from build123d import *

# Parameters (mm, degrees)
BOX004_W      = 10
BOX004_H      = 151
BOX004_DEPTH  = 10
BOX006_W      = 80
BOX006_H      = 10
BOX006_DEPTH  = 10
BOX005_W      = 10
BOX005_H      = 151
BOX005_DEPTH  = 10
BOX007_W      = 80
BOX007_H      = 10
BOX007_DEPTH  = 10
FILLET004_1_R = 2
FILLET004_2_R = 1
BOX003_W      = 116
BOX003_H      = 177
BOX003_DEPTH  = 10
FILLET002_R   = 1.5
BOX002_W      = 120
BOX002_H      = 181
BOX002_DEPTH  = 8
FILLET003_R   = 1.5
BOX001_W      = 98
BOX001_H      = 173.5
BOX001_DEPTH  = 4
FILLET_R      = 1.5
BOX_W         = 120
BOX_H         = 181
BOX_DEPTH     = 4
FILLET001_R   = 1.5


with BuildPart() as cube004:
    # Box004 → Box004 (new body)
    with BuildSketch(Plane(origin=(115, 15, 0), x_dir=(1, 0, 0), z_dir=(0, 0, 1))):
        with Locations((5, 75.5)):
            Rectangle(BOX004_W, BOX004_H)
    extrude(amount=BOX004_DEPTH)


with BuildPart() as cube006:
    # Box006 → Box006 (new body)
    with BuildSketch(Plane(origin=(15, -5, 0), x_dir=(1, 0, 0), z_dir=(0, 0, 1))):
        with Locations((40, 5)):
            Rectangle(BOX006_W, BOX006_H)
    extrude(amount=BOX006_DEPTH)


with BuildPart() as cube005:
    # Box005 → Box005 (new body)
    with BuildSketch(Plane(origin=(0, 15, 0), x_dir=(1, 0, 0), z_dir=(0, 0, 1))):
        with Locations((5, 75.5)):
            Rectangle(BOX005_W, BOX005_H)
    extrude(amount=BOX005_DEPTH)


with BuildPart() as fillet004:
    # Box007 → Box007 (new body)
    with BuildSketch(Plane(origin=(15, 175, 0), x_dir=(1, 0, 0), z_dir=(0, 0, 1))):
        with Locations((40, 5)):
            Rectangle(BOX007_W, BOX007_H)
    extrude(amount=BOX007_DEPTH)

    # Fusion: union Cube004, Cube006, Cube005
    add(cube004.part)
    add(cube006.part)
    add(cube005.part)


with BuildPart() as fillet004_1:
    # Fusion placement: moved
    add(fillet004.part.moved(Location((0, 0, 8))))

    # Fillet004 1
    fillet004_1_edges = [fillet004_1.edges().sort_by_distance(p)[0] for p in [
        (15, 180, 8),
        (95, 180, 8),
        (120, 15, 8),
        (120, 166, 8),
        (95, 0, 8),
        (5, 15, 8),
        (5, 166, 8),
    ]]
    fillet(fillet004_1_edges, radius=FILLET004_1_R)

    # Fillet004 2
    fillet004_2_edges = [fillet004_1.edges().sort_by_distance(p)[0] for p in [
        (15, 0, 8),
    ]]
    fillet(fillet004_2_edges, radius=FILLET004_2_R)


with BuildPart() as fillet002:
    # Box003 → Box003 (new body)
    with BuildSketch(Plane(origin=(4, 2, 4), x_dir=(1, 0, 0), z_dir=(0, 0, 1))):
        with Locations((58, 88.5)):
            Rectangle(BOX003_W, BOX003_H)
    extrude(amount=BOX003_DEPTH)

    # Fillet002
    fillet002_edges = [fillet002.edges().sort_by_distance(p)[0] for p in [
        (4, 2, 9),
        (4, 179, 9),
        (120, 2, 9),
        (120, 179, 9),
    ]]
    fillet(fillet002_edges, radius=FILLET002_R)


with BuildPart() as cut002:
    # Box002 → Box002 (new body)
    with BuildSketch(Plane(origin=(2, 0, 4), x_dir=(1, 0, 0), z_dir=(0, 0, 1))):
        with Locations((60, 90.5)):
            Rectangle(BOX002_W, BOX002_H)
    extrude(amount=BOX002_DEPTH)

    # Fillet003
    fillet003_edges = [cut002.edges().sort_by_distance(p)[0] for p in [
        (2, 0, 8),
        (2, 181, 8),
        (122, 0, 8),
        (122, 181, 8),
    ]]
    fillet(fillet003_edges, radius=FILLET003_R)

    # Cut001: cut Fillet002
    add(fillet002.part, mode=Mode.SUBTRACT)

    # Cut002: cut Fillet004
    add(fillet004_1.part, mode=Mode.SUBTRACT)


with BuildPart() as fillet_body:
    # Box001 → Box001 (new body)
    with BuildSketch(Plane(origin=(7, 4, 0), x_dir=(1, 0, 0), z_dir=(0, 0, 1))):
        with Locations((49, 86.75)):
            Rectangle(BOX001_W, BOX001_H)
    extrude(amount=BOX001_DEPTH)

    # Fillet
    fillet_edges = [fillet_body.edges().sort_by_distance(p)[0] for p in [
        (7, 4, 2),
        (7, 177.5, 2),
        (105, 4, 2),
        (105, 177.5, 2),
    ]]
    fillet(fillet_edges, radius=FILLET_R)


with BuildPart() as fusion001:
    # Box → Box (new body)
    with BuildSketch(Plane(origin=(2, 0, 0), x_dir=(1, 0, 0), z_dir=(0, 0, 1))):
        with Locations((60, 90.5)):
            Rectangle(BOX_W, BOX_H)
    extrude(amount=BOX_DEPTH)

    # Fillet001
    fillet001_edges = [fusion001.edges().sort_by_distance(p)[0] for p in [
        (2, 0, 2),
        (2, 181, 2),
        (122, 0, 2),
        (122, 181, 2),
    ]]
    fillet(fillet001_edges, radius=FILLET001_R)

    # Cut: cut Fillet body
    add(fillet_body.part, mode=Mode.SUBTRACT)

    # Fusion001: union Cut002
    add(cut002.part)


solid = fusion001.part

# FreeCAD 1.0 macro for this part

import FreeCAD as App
import Part
import Sketcher


def edges_at(feature, points):
    """Names of the edges that pass closest to the given points."""
    edges = feature.Shape.Edges
    near = lambda p: min(range(len(edges)), key=lambda i: edges[i].distToShape(Part.Vertex(*p))[0])
    return sorted({f"Edge{near(p) + 1}" for p in points})

doc = App.newDocument("Part")
params = doc.addObject("Spreadsheet::Sheet", "Params")
for row, (alias, value) in enumerate([
    ("sketch1_width", "10 mm"),
    ("sketch1_height", "151 mm"),
    ("pad1_length", "10 mm"),
    ("sketch2_width", "80 mm"),
    ("sketch2_height", "10 mm"),
    ("pad2_length", "10 mm"),
    ("sketch3_width", "10 mm"),
    ("sketch3_height", "151 mm"),
    ("pad3_length", "10 mm"),
    ("sketch4_width", "80 mm"),
    ("sketch4_height", "10 mm"),
    ("pad4_length", "10 mm"),
    ("fillet_radius", "2 mm"),
    ("fillet2_radius", "1 mm"),
    ("sketch5_width", "116 mm"),
    ("sketch5_height", "177 mm"),
    ("pad5_length", "10 mm"),
    ("fillet3_radius", "1.5 mm"),
    ("sketch6_width", "120 mm"),
    ("sketch6_height", "181 mm"),
    ("pad6_length", "8 mm"),
    ("fillet4_radius", "1.5 mm"),
    ("sketch7_width", "98 mm"),
    ("sketch7_height", "173.5 mm"),
    ("pad7_length", "4 mm"),
    ("fillet5_radius", "1.5 mm"),
    ("sketch8_width", "120 mm"),
    ("sketch8_height", "181 mm"),
    ("pad8_length", "4 mm"),
    ("fillet6_radius", "1.5 mm"),
], start=1):
    params.set(f"A{row}", alias)
    params.set(f"B{row}", "=" + value)
    params.setAlias(f"B{row}", alias)

body = doc.addObject("PartDesign::Body", "Body")

sketch1 = body.newObject("Sketcher::SketchObject", "Sketch")
sketch1.AttachmentSupport = (doc.getObject("XY_Plane"), [""])
sketch1.MapMode = "FlatFace"
sketch1.addGeometry(Part.LineSegment(App.Vector(115, 166, 0), App.Vector(115, 15, 0)), False)
sketch1.addGeometry(Part.LineSegment(App.Vector(115, 15, 0), App.Vector(125, 15, 0)), False)
sketch1.addGeometry(Part.LineSegment(App.Vector(125, 15, 0), App.Vector(125, 166, 0)), False)
sketch1.addGeometry(Part.LineSegment(App.Vector(125, 166, 0), App.Vector(115, 166, 0)), False)
sketch1.addConstraint(Sketcher.Constraint("Coincident", 0, 2, 1, 1))
sketch1.addConstraint(Sketcher.Constraint("Coincident", 1, 2, 2, 1))
sketch1.addConstraint(Sketcher.Constraint("Coincident", 2, 2, 3, 1))
sketch1.addConstraint(Sketcher.Constraint("Coincident", 3, 2, 0, 1))
sketch1.addConstraint(Sketcher.Constraint("Vertical", 0))
sketch1.addConstraint(Sketcher.Constraint("Horizontal", 1))
sketch1.addConstraint(Sketcher.Constraint("Vertical", 2))
sketch1.addConstraint(Sketcher.Constraint("Horizontal", 3))
sketch1.addConstraint(Sketcher.Constraint("DistanceX", 1, 1, 1, 2, 10.0))
sketch1.addConstraint(Sketcher.Constraint("DistanceY", 0, 2, 0, 1, 151.0))
sketch1.addConstraint(Sketcher.Constraint("DistanceX", -1, 1, 0, 2, 115.0))
sketch1.addConstraint(Sketcher.Constraint("DistanceY", -1, 1, 0, 2, 15.0))
sketch1.setExpression("Constraints[8]", "Params.sketch1_width")
sketch1.setExpression("Constraints[9]", "Params.sketch1_height")
pad1 = body.newObject("PartDesign::Pad", "Pad")
pad1.Profile = sketch1
pad1.setExpression("Length", "Params.pad1_length")
body2 = doc.addObject("PartDesign::Body", "Body001")

sketch2 = body2.newObject("Sketcher::SketchObject", "Sketch001")
sketch2.AttachmentSupport = (doc.getObject("XY_Plane001"), [""])
sketch2.MapMode = "FlatFace"
sketch2.addGeometry(Part.LineSegment(App.Vector(15, 5, 0), App.Vector(15, -5, 0)), False)
sketch2.addGeometry(Part.LineSegment(App.Vector(15, -5, 0), App.Vector(95, -5, 0)), False)
sketch2.addGeometry(Part.LineSegment(App.Vector(95, -5, 0), App.Vector(95, 5, 0)), False)
sketch2.addGeometry(Part.LineSegment(App.Vector(95, 5, 0), App.Vector(15, 5, 0)), False)
sketch2.addConstraint(Sketcher.Constraint("Coincident", 0, 2, 1, 1))
sketch2.addConstraint(Sketcher.Constraint("Coincident", 1, 2, 2, 1))
sketch2.addConstraint(Sketcher.Constraint("Coincident", 2, 2, 3, 1))
sketch2.addConstraint(Sketcher.Constraint("Coincident", 3, 2, 0, 1))
sketch2.addConstraint(Sketcher.Constraint("Vertical", 0))
sketch2.addConstraint(Sketcher.Constraint("Horizontal", 1))
sketch2.addConstraint(Sketcher.Constraint("Vertical", 2))
sketch2.addConstraint(Sketcher.Constraint("Horizontal", 3))
sketch2.addConstraint(Sketcher.Constraint("DistanceX", 1, 1, 1, 2, 80.0))
sketch2.addConstraint(Sketcher.Constraint("DistanceY", 0, 2, 0, 1, 10.0))
sketch2.addConstraint(Sketcher.Constraint("DistanceX", -1, 1, 0, 2, 15.0))
sketch2.addConstraint(Sketcher.Constraint("DistanceY", 0, 2, -1, 1, 5.0))
sketch2.setExpression("Constraints[8]", "Params.sketch2_width")
sketch2.setExpression("Constraints[9]", "Params.sketch2_height")
pad2 = body2.newObject("PartDesign::Pad", "Pad001")
pad2.Profile = sketch2
pad2.setExpression("Length", "Params.pad2_length")
body3 = doc.addObject("PartDesign::Body", "Body002")

sketch3 = body3.newObject("Sketcher::SketchObject", "Sketch002")
sketch3.AttachmentSupport = (doc.getObject("XY_Plane002"), [""])
sketch3.MapMode = "FlatFace"
sketch3.addGeometry(Part.LineSegment(App.Vector(0, 166, 0), App.Vector(0, 15, 0)), False)
sketch3.addGeometry(Part.LineSegment(App.Vector(0, 15, 0), App.Vector(10, 15, 0)), False)
sketch3.addGeometry(Part.LineSegment(App.Vector(10, 15, 0), App.Vector(10, 166, 0)), False)
sketch3.addGeometry(Part.LineSegment(App.Vector(10, 166, 0), App.Vector(0, 166, 0)), False)
sketch3.addConstraint(Sketcher.Constraint("Coincident", 0, 2, 1, 1))
sketch3.addConstraint(Sketcher.Constraint("Coincident", 1, 2, 2, 1))
sketch3.addConstraint(Sketcher.Constraint("Coincident", 2, 2, 3, 1))
sketch3.addConstraint(Sketcher.Constraint("Coincident", 3, 2, 0, 1))
sketch3.addConstraint(Sketcher.Constraint("Vertical", 0))
sketch3.addConstraint(Sketcher.Constraint("Horizontal", 1))
sketch3.addConstraint(Sketcher.Constraint("Vertical", 2))
sketch3.addConstraint(Sketcher.Constraint("Horizontal", 3))
sketch3.addConstraint(Sketcher.Constraint("PointOnObject", 0, 2, -2))
sketch3.addConstraint(Sketcher.Constraint("DistanceX", 1, 1, 1, 2, 10.0))
sketch3.addConstraint(Sketcher.Constraint("DistanceY", 0, 2, 0, 1, 151.0))
sketch3.addConstraint(Sketcher.Constraint("DistanceY", -1, 1, 0, 2, 15.0))
sketch3.setExpression("Constraints[9]", "Params.sketch3_width")
sketch3.setExpression("Constraints[10]", "Params.sketch3_height")
pad3 = body3.newObject("PartDesign::Pad", "Pad002")
pad3.Profile = sketch3
pad3.setExpression("Length", "Params.pad3_length")
body4 = doc.addObject("PartDesign::Body", "Body003")
body4.AllowCompound = True

sketch4 = body4.newObject("Sketcher::SketchObject", "Sketch003")
sketch4.AttachmentSupport = (doc.getObject("XY_Plane003"), [""])
sketch4.MapMode = "FlatFace"
sketch4.addGeometry(Part.LineSegment(App.Vector(15, 185, 0), App.Vector(15, 175, 0)), False)
sketch4.addGeometry(Part.LineSegment(App.Vector(15, 175, 0), App.Vector(95, 175, 0)), False)
sketch4.addGeometry(Part.LineSegment(App.Vector(95, 175, 0), App.Vector(95, 185, 0)), False)
sketch4.addGeometry(Part.LineSegment(App.Vector(95, 185, 0), App.Vector(15, 185, 0)), False)
sketch4.addConstraint(Sketcher.Constraint("Coincident", 0, 2, 1, 1))
sketch4.addConstraint(Sketcher.Constraint("Coincident", 1, 2, 2, 1))
sketch4.addConstraint(Sketcher.Constraint("Coincident", 2, 2, 3, 1))
sketch4.addConstraint(Sketcher.Constraint("Coincident", 3, 2, 0, 1))
sketch4.addConstraint(Sketcher.Constraint("Vertical", 0))
sketch4.addConstraint(Sketcher.Constraint("Horizontal", 1))
sketch4.addConstraint(Sketcher.Constraint("Vertical", 2))
sketch4.addConstraint(Sketcher.Constraint("Horizontal", 3))
sketch4.addConstraint(Sketcher.Constraint("DistanceX", 1, 1, 1, 2, 80.0))
sketch4.addConstraint(Sketcher.Constraint("DistanceY", 0, 2, 0, 1, 10.0))
sketch4.addConstraint(Sketcher.Constraint("DistanceX", -1, 1, 0, 2, 15.0))
sketch4.addConstraint(Sketcher.Constraint("DistanceY", -1, 1, 0, 2, 175.0))
sketch4.setExpression("Constraints[8]", "Params.sketch4_width")
sketch4.setExpression("Constraints[9]", "Params.sketch4_height")
pad4 = body4.newObject("PartDesign::Pad", "Pad003")
pad4.Profile = sketch4
pad4.setExpression("Length", "Params.pad4_length")
doc.recompute()

boolean = body4.newObject("PartDesign::Boolean", "Boolean")
boolean.Type = "Fuse"
boolean.addObjects([body])
doc.recompute()

boolean2 = body4.newObject("PartDesign::Boolean", "Boolean001")
boolean2.Type = "Fuse"
boolean2.addObjects([body2])
doc.recompute()

boolean3 = body4.newObject("PartDesign::Boolean", "Boolean002")
boolean3.Type = "Fuse"
boolean3.addObjects([body3])
body5 = doc.addObject("PartDesign::Body", "Body004")
body5.AllowCompound = True
doc.recompute()

body4.Placement = App.Placement(App.Vector(0, 0, 8), App.Rotation(App.Vector(0, 0, 1), 0))
boolean4 = body5.newObject("PartDesign::Boolean", "Boolean003")
boolean4.Type = "Fuse"
boolean4.addObjects([body4])
doc.recompute()

fillet = body5.newObject("PartDesign::Fillet", "Fillet")
fillet.Base = (boolean4, edges_at(boolean4, [
    (15, 180, 8),
    (95, 180, 8),
    (120, 15, 8),
    (120, 166, 8),
    (95, 0, 8),
    (5, 15, 8),
    (5, 166, 8),
]))
fillet.setExpression("Radius", "Params.fillet_radius")
doc.recompute()

fillet2 = body5.newObject("PartDesign::Fillet", "Fillet001")
fillet2.Base = (fillet, edges_at(fillet, [(15, 0, 8)]))
fillet2.setExpression("Radius", "Params.fillet2_radius")
body6 = doc.addObject("PartDesign::Body", "Body005")

sketch5 = body6.newObject("Sketcher::SketchObject", "Sketch004")
sketch5.AttachmentSupport = (doc.getObject("XY_Plane005"), [""])
sketch5.MapMode = "FlatFace"
sketch5.AttachmentOffset = App.Placement(App.Vector(0, 0, 4), App.Rotation())
sketch5.addGeometry(Part.LineSegment(App.Vector(4, 179, 0), App.Vector(4, 2, 0)), False)
sketch5.addGeometry(Part.LineSegment(App.Vector(4, 2, 0), App.Vector(120, 2, 0)), False)
sketch5.addGeometry(Part.LineSegment(App.Vector(120, 2, 0), App.Vector(120, 179, 0)), False)
sketch5.addGeometry(Part.LineSegment(App.Vector(120, 179, 0), App.Vector(4, 179, 0)), False)
sketch5.addConstraint(Sketcher.Constraint("Coincident", 0, 2, 1, 1))
sketch5.addConstraint(Sketcher.Constraint("Coincident", 1, 2, 2, 1))
sketch5.addConstraint(Sketcher.Constraint("Coincident", 2, 2, 3, 1))
sketch5.addConstraint(Sketcher.Constraint("Coincident", 3, 2, 0, 1))
sketch5.addConstraint(Sketcher.Constraint("Vertical", 0))
sketch5.addConstraint(Sketcher.Constraint("Horizontal", 1))
sketch5.addConstraint(Sketcher.Constraint("Vertical", 2))
sketch5.addConstraint(Sketcher.Constraint("Horizontal", 3))
sketch5.addConstraint(Sketcher.Constraint("DistanceX", 1, 1, 1, 2, 116.0))
sketch5.addConstraint(Sketcher.Constraint("DistanceY", 0, 2, 0, 1, 177.0))
sketch5.addConstraint(Sketcher.Constraint("DistanceX", -1, 1, 0, 2, 4.0))
sketch5.addConstraint(Sketcher.Constraint("DistanceY", -1, 1, 0, 2, 2.0))
sketch5.setExpression("Constraints[8]", "Params.sketch5_width")
sketch5.setExpression("Constraints[9]", "Params.sketch5_height")
pad5 = body6.newObject("PartDesign::Pad", "Pad004")
pad5.Profile = sketch5
pad5.setExpression("Length", "Params.pad5_length")
doc.recompute()

fillet3 = body6.newObject("PartDesign::Fillet", "Fillet002")
fillet3.Base = (pad5, edges_at(pad5, [
    (4, 2, 9),
    (4, 179, 9),
    (120, 2, 9),
    (120, 179, 9),
]))
fillet3.setExpression("Radius", "Params.fillet3_radius")
body7 = doc.addObject("PartDesign::Body", "Body006")

sketch6 = body7.newObject("Sketcher::SketchObject", "Sketch005")
sketch6.AttachmentSupport = (doc.getObject("XY_Plane006"), [""])
sketch6.MapMode = "FlatFace"
sketch6.AttachmentOffset = App.Placement(App.Vector(0, 0, 4), App.Rotation())
sketch6.addGeometry(Part.LineSegment(App.Vector(2, 181, 0), App.Vector(2, 0, 0)), False)
sketch6.addGeometry(Part.LineSegment(App.Vector(2, 0, 0), App.Vector(122, 0, 0)), False)
sketch6.addGeometry(Part.LineSegment(App.Vector(122, 0, 0), App.Vector(122, 181, 0)), False)
sketch6.addGeometry(Part.LineSegment(App.Vector(122, 181, 0), App.Vector(2, 181, 0)), False)
sketch6.addConstraint(Sketcher.Constraint("Coincident", 0, 2, 1, 1))
sketch6.addConstraint(Sketcher.Constraint("Coincident", 1, 2, 2, 1))
sketch6.addConstraint(Sketcher.Constraint("Coincident", 2, 2, 3, 1))
sketch6.addConstraint(Sketcher.Constraint("Coincident", 3, 2, 0, 1))
sketch6.addConstraint(Sketcher.Constraint("Vertical", 0))
sketch6.addConstraint(Sketcher.Constraint("Horizontal", 1))
sketch6.addConstraint(Sketcher.Constraint("Vertical", 2))
sketch6.addConstraint(Sketcher.Constraint("Horizontal", 3))
sketch6.addConstraint(Sketcher.Constraint("PointOnObject", 0, 2, -1))
sketch6.addConstraint(Sketcher.Constraint("DistanceX", 1, 1, 1, 2, 120.0))
sketch6.addConstraint(Sketcher.Constraint("DistanceY", 0, 2, 0, 1, 181.0))
sketch6.addConstraint(Sketcher.Constraint("DistanceX", -1, 1, 0, 2, 2.0))
sketch6.setExpression("Constraints[9]", "Params.sketch6_width")
sketch6.setExpression("Constraints[10]", "Params.sketch6_height")
pad6 = body7.newObject("PartDesign::Pad", "Pad005")
pad6.Profile = sketch6
pad6.setExpression("Length", "Params.pad6_length")
doc.recompute()

fillet4 = body7.newObject("PartDesign::Fillet", "Fillet003")
fillet4.Base = (pad6, edges_at(pad6, [
    (2, 0, 8),
    (2, 181, 8),
    (122, 0, 8),
    (122, 181, 8),
]))
fillet4.setExpression("Radius", "Params.fillet4_radius")
doc.recompute()

boolean5 = body7.newObject("PartDesign::Boolean", "Boolean004")
boolean5.Type = "Cut"
boolean5.addObjects([body6])
doc.recompute()

boolean6 = body7.newObject("PartDesign::Boolean", "Boolean005")
boolean6.Type = "Cut"
boolean6.addObjects([body5])
body8 = doc.addObject("PartDesign::Body", "Body007")

sketch7 = body8.newObject("Sketcher::SketchObject", "Sketch006")
sketch7.AttachmentSupport = (doc.getObject("XY_Plane007"), [""])
sketch7.MapMode = "FlatFace"
sketch7.addGeometry(Part.LineSegment(App.Vector(7, 177.5, 0), App.Vector(7, 4, 0)), False)
sketch7.addGeometry(Part.LineSegment(App.Vector(7, 4, 0), App.Vector(105, 4, 0)), False)
sketch7.addGeometry(Part.LineSegment(App.Vector(105, 4, 0), App.Vector(105, 177.5, 0)), False)
sketch7.addGeometry(Part.LineSegment(App.Vector(105, 177.5, 0), App.Vector(7, 177.5, 0)), False)
sketch7.addConstraint(Sketcher.Constraint("Coincident", 0, 2, 1, 1))
sketch7.addConstraint(Sketcher.Constraint("Coincident", 1, 2, 2, 1))
sketch7.addConstraint(Sketcher.Constraint("Coincident", 2, 2, 3, 1))
sketch7.addConstraint(Sketcher.Constraint("Coincident", 3, 2, 0, 1))
sketch7.addConstraint(Sketcher.Constraint("Vertical", 0))
sketch7.addConstraint(Sketcher.Constraint("Horizontal", 1))
sketch7.addConstraint(Sketcher.Constraint("Vertical", 2))
sketch7.addConstraint(Sketcher.Constraint("Horizontal", 3))
sketch7.addConstraint(Sketcher.Constraint("DistanceX", 1, 1, 1, 2, 98.0))
sketch7.addConstraint(Sketcher.Constraint("DistanceY", 0, 2, 0, 1, 173.5))
sketch7.addConstraint(Sketcher.Constraint("DistanceX", -1, 1, 0, 2, 7.0))
sketch7.addConstraint(Sketcher.Constraint("DistanceY", -1, 1, 0, 2, 4.0))
sketch7.setExpression("Constraints[8]", "Params.sketch7_width")
sketch7.setExpression("Constraints[9]", "Params.sketch7_height")
pad7 = body8.newObject("PartDesign::Pad", "Pad006")
pad7.Profile = sketch7
pad7.setExpression("Length", "Params.pad7_length")
doc.recompute()

fillet5 = body8.newObject("PartDesign::Fillet", "Fillet004")
fillet5.Base = (pad7, edges_at(pad7, [
    (7, 4, 2),
    (7, 177.5, 2),
    (105, 4, 2),
    (105, 177.5, 2),
]))
fillet5.setExpression("Radius", "Params.fillet5_radius")
body9 = doc.addObject("PartDesign::Body", "Body008")

sketch8 = body9.newObject("Sketcher::SketchObject", "Sketch007")
sketch8.AttachmentSupport = (doc.getObject("XY_Plane008"), [""])
sketch8.MapMode = "FlatFace"
sketch8.addGeometry(Part.LineSegment(App.Vector(2, 181, 0), App.Vector(2, 0, 0)), False)
sketch8.addGeometry(Part.LineSegment(App.Vector(2, 0, 0), App.Vector(122, 0, 0)), False)
sketch8.addGeometry(Part.LineSegment(App.Vector(122, 0, 0), App.Vector(122, 181, 0)), False)
sketch8.addGeometry(Part.LineSegment(App.Vector(122, 181, 0), App.Vector(2, 181, 0)), False)
sketch8.addConstraint(Sketcher.Constraint("Coincident", 0, 2, 1, 1))
sketch8.addConstraint(Sketcher.Constraint("Coincident", 1, 2, 2, 1))
sketch8.addConstraint(Sketcher.Constraint("Coincident", 2, 2, 3, 1))
sketch8.addConstraint(Sketcher.Constraint("Coincident", 3, 2, 0, 1))
sketch8.addConstraint(Sketcher.Constraint("Vertical", 0))
sketch8.addConstraint(Sketcher.Constraint("Horizontal", 1))
sketch8.addConstraint(Sketcher.Constraint("Vertical", 2))
sketch8.addConstraint(Sketcher.Constraint("Horizontal", 3))
sketch8.addConstraint(Sketcher.Constraint("PointOnObject", 0, 2, -1))
sketch8.addConstraint(Sketcher.Constraint("DistanceX", 1, 1, 1, 2, 120.0))
sketch8.addConstraint(Sketcher.Constraint("DistanceY", 0, 2, 0, 1, 181.0))
sketch8.addConstraint(Sketcher.Constraint("DistanceX", -1, 1, 0, 2, 2.0))
sketch8.setExpression("Constraints[9]", "Params.sketch8_width")
sketch8.setExpression("Constraints[10]", "Params.sketch8_height")
pad8 = body9.newObject("PartDesign::Pad", "Pad007")
pad8.Profile = sketch8
pad8.setExpression("Length", "Params.pad8_length")
doc.recompute()

fillet6 = body9.newObject("PartDesign::Fillet", "Fillet005")
fillet6.Base = (pad8, edges_at(pad8, [
    (2, 0, 2),
    (2, 181, 2),
    (122, 0, 2),
    (122, 181, 2),
]))
fillet6.setExpression("Radius", "Params.fillet6_radius")
doc.recompute()

boolean7 = body9.newObject("PartDesign::Boolean", "Boolean006")
boolean7.Type = "Cut"
boolean7.addObjects([body8])
doc.recompute()

boolean8 = body9.newObject("PartDesign::Boolean", "Boolean007")
boolean8.Type = "Fuse"
boolean8.addObjects([body7])

doc.recompute()
